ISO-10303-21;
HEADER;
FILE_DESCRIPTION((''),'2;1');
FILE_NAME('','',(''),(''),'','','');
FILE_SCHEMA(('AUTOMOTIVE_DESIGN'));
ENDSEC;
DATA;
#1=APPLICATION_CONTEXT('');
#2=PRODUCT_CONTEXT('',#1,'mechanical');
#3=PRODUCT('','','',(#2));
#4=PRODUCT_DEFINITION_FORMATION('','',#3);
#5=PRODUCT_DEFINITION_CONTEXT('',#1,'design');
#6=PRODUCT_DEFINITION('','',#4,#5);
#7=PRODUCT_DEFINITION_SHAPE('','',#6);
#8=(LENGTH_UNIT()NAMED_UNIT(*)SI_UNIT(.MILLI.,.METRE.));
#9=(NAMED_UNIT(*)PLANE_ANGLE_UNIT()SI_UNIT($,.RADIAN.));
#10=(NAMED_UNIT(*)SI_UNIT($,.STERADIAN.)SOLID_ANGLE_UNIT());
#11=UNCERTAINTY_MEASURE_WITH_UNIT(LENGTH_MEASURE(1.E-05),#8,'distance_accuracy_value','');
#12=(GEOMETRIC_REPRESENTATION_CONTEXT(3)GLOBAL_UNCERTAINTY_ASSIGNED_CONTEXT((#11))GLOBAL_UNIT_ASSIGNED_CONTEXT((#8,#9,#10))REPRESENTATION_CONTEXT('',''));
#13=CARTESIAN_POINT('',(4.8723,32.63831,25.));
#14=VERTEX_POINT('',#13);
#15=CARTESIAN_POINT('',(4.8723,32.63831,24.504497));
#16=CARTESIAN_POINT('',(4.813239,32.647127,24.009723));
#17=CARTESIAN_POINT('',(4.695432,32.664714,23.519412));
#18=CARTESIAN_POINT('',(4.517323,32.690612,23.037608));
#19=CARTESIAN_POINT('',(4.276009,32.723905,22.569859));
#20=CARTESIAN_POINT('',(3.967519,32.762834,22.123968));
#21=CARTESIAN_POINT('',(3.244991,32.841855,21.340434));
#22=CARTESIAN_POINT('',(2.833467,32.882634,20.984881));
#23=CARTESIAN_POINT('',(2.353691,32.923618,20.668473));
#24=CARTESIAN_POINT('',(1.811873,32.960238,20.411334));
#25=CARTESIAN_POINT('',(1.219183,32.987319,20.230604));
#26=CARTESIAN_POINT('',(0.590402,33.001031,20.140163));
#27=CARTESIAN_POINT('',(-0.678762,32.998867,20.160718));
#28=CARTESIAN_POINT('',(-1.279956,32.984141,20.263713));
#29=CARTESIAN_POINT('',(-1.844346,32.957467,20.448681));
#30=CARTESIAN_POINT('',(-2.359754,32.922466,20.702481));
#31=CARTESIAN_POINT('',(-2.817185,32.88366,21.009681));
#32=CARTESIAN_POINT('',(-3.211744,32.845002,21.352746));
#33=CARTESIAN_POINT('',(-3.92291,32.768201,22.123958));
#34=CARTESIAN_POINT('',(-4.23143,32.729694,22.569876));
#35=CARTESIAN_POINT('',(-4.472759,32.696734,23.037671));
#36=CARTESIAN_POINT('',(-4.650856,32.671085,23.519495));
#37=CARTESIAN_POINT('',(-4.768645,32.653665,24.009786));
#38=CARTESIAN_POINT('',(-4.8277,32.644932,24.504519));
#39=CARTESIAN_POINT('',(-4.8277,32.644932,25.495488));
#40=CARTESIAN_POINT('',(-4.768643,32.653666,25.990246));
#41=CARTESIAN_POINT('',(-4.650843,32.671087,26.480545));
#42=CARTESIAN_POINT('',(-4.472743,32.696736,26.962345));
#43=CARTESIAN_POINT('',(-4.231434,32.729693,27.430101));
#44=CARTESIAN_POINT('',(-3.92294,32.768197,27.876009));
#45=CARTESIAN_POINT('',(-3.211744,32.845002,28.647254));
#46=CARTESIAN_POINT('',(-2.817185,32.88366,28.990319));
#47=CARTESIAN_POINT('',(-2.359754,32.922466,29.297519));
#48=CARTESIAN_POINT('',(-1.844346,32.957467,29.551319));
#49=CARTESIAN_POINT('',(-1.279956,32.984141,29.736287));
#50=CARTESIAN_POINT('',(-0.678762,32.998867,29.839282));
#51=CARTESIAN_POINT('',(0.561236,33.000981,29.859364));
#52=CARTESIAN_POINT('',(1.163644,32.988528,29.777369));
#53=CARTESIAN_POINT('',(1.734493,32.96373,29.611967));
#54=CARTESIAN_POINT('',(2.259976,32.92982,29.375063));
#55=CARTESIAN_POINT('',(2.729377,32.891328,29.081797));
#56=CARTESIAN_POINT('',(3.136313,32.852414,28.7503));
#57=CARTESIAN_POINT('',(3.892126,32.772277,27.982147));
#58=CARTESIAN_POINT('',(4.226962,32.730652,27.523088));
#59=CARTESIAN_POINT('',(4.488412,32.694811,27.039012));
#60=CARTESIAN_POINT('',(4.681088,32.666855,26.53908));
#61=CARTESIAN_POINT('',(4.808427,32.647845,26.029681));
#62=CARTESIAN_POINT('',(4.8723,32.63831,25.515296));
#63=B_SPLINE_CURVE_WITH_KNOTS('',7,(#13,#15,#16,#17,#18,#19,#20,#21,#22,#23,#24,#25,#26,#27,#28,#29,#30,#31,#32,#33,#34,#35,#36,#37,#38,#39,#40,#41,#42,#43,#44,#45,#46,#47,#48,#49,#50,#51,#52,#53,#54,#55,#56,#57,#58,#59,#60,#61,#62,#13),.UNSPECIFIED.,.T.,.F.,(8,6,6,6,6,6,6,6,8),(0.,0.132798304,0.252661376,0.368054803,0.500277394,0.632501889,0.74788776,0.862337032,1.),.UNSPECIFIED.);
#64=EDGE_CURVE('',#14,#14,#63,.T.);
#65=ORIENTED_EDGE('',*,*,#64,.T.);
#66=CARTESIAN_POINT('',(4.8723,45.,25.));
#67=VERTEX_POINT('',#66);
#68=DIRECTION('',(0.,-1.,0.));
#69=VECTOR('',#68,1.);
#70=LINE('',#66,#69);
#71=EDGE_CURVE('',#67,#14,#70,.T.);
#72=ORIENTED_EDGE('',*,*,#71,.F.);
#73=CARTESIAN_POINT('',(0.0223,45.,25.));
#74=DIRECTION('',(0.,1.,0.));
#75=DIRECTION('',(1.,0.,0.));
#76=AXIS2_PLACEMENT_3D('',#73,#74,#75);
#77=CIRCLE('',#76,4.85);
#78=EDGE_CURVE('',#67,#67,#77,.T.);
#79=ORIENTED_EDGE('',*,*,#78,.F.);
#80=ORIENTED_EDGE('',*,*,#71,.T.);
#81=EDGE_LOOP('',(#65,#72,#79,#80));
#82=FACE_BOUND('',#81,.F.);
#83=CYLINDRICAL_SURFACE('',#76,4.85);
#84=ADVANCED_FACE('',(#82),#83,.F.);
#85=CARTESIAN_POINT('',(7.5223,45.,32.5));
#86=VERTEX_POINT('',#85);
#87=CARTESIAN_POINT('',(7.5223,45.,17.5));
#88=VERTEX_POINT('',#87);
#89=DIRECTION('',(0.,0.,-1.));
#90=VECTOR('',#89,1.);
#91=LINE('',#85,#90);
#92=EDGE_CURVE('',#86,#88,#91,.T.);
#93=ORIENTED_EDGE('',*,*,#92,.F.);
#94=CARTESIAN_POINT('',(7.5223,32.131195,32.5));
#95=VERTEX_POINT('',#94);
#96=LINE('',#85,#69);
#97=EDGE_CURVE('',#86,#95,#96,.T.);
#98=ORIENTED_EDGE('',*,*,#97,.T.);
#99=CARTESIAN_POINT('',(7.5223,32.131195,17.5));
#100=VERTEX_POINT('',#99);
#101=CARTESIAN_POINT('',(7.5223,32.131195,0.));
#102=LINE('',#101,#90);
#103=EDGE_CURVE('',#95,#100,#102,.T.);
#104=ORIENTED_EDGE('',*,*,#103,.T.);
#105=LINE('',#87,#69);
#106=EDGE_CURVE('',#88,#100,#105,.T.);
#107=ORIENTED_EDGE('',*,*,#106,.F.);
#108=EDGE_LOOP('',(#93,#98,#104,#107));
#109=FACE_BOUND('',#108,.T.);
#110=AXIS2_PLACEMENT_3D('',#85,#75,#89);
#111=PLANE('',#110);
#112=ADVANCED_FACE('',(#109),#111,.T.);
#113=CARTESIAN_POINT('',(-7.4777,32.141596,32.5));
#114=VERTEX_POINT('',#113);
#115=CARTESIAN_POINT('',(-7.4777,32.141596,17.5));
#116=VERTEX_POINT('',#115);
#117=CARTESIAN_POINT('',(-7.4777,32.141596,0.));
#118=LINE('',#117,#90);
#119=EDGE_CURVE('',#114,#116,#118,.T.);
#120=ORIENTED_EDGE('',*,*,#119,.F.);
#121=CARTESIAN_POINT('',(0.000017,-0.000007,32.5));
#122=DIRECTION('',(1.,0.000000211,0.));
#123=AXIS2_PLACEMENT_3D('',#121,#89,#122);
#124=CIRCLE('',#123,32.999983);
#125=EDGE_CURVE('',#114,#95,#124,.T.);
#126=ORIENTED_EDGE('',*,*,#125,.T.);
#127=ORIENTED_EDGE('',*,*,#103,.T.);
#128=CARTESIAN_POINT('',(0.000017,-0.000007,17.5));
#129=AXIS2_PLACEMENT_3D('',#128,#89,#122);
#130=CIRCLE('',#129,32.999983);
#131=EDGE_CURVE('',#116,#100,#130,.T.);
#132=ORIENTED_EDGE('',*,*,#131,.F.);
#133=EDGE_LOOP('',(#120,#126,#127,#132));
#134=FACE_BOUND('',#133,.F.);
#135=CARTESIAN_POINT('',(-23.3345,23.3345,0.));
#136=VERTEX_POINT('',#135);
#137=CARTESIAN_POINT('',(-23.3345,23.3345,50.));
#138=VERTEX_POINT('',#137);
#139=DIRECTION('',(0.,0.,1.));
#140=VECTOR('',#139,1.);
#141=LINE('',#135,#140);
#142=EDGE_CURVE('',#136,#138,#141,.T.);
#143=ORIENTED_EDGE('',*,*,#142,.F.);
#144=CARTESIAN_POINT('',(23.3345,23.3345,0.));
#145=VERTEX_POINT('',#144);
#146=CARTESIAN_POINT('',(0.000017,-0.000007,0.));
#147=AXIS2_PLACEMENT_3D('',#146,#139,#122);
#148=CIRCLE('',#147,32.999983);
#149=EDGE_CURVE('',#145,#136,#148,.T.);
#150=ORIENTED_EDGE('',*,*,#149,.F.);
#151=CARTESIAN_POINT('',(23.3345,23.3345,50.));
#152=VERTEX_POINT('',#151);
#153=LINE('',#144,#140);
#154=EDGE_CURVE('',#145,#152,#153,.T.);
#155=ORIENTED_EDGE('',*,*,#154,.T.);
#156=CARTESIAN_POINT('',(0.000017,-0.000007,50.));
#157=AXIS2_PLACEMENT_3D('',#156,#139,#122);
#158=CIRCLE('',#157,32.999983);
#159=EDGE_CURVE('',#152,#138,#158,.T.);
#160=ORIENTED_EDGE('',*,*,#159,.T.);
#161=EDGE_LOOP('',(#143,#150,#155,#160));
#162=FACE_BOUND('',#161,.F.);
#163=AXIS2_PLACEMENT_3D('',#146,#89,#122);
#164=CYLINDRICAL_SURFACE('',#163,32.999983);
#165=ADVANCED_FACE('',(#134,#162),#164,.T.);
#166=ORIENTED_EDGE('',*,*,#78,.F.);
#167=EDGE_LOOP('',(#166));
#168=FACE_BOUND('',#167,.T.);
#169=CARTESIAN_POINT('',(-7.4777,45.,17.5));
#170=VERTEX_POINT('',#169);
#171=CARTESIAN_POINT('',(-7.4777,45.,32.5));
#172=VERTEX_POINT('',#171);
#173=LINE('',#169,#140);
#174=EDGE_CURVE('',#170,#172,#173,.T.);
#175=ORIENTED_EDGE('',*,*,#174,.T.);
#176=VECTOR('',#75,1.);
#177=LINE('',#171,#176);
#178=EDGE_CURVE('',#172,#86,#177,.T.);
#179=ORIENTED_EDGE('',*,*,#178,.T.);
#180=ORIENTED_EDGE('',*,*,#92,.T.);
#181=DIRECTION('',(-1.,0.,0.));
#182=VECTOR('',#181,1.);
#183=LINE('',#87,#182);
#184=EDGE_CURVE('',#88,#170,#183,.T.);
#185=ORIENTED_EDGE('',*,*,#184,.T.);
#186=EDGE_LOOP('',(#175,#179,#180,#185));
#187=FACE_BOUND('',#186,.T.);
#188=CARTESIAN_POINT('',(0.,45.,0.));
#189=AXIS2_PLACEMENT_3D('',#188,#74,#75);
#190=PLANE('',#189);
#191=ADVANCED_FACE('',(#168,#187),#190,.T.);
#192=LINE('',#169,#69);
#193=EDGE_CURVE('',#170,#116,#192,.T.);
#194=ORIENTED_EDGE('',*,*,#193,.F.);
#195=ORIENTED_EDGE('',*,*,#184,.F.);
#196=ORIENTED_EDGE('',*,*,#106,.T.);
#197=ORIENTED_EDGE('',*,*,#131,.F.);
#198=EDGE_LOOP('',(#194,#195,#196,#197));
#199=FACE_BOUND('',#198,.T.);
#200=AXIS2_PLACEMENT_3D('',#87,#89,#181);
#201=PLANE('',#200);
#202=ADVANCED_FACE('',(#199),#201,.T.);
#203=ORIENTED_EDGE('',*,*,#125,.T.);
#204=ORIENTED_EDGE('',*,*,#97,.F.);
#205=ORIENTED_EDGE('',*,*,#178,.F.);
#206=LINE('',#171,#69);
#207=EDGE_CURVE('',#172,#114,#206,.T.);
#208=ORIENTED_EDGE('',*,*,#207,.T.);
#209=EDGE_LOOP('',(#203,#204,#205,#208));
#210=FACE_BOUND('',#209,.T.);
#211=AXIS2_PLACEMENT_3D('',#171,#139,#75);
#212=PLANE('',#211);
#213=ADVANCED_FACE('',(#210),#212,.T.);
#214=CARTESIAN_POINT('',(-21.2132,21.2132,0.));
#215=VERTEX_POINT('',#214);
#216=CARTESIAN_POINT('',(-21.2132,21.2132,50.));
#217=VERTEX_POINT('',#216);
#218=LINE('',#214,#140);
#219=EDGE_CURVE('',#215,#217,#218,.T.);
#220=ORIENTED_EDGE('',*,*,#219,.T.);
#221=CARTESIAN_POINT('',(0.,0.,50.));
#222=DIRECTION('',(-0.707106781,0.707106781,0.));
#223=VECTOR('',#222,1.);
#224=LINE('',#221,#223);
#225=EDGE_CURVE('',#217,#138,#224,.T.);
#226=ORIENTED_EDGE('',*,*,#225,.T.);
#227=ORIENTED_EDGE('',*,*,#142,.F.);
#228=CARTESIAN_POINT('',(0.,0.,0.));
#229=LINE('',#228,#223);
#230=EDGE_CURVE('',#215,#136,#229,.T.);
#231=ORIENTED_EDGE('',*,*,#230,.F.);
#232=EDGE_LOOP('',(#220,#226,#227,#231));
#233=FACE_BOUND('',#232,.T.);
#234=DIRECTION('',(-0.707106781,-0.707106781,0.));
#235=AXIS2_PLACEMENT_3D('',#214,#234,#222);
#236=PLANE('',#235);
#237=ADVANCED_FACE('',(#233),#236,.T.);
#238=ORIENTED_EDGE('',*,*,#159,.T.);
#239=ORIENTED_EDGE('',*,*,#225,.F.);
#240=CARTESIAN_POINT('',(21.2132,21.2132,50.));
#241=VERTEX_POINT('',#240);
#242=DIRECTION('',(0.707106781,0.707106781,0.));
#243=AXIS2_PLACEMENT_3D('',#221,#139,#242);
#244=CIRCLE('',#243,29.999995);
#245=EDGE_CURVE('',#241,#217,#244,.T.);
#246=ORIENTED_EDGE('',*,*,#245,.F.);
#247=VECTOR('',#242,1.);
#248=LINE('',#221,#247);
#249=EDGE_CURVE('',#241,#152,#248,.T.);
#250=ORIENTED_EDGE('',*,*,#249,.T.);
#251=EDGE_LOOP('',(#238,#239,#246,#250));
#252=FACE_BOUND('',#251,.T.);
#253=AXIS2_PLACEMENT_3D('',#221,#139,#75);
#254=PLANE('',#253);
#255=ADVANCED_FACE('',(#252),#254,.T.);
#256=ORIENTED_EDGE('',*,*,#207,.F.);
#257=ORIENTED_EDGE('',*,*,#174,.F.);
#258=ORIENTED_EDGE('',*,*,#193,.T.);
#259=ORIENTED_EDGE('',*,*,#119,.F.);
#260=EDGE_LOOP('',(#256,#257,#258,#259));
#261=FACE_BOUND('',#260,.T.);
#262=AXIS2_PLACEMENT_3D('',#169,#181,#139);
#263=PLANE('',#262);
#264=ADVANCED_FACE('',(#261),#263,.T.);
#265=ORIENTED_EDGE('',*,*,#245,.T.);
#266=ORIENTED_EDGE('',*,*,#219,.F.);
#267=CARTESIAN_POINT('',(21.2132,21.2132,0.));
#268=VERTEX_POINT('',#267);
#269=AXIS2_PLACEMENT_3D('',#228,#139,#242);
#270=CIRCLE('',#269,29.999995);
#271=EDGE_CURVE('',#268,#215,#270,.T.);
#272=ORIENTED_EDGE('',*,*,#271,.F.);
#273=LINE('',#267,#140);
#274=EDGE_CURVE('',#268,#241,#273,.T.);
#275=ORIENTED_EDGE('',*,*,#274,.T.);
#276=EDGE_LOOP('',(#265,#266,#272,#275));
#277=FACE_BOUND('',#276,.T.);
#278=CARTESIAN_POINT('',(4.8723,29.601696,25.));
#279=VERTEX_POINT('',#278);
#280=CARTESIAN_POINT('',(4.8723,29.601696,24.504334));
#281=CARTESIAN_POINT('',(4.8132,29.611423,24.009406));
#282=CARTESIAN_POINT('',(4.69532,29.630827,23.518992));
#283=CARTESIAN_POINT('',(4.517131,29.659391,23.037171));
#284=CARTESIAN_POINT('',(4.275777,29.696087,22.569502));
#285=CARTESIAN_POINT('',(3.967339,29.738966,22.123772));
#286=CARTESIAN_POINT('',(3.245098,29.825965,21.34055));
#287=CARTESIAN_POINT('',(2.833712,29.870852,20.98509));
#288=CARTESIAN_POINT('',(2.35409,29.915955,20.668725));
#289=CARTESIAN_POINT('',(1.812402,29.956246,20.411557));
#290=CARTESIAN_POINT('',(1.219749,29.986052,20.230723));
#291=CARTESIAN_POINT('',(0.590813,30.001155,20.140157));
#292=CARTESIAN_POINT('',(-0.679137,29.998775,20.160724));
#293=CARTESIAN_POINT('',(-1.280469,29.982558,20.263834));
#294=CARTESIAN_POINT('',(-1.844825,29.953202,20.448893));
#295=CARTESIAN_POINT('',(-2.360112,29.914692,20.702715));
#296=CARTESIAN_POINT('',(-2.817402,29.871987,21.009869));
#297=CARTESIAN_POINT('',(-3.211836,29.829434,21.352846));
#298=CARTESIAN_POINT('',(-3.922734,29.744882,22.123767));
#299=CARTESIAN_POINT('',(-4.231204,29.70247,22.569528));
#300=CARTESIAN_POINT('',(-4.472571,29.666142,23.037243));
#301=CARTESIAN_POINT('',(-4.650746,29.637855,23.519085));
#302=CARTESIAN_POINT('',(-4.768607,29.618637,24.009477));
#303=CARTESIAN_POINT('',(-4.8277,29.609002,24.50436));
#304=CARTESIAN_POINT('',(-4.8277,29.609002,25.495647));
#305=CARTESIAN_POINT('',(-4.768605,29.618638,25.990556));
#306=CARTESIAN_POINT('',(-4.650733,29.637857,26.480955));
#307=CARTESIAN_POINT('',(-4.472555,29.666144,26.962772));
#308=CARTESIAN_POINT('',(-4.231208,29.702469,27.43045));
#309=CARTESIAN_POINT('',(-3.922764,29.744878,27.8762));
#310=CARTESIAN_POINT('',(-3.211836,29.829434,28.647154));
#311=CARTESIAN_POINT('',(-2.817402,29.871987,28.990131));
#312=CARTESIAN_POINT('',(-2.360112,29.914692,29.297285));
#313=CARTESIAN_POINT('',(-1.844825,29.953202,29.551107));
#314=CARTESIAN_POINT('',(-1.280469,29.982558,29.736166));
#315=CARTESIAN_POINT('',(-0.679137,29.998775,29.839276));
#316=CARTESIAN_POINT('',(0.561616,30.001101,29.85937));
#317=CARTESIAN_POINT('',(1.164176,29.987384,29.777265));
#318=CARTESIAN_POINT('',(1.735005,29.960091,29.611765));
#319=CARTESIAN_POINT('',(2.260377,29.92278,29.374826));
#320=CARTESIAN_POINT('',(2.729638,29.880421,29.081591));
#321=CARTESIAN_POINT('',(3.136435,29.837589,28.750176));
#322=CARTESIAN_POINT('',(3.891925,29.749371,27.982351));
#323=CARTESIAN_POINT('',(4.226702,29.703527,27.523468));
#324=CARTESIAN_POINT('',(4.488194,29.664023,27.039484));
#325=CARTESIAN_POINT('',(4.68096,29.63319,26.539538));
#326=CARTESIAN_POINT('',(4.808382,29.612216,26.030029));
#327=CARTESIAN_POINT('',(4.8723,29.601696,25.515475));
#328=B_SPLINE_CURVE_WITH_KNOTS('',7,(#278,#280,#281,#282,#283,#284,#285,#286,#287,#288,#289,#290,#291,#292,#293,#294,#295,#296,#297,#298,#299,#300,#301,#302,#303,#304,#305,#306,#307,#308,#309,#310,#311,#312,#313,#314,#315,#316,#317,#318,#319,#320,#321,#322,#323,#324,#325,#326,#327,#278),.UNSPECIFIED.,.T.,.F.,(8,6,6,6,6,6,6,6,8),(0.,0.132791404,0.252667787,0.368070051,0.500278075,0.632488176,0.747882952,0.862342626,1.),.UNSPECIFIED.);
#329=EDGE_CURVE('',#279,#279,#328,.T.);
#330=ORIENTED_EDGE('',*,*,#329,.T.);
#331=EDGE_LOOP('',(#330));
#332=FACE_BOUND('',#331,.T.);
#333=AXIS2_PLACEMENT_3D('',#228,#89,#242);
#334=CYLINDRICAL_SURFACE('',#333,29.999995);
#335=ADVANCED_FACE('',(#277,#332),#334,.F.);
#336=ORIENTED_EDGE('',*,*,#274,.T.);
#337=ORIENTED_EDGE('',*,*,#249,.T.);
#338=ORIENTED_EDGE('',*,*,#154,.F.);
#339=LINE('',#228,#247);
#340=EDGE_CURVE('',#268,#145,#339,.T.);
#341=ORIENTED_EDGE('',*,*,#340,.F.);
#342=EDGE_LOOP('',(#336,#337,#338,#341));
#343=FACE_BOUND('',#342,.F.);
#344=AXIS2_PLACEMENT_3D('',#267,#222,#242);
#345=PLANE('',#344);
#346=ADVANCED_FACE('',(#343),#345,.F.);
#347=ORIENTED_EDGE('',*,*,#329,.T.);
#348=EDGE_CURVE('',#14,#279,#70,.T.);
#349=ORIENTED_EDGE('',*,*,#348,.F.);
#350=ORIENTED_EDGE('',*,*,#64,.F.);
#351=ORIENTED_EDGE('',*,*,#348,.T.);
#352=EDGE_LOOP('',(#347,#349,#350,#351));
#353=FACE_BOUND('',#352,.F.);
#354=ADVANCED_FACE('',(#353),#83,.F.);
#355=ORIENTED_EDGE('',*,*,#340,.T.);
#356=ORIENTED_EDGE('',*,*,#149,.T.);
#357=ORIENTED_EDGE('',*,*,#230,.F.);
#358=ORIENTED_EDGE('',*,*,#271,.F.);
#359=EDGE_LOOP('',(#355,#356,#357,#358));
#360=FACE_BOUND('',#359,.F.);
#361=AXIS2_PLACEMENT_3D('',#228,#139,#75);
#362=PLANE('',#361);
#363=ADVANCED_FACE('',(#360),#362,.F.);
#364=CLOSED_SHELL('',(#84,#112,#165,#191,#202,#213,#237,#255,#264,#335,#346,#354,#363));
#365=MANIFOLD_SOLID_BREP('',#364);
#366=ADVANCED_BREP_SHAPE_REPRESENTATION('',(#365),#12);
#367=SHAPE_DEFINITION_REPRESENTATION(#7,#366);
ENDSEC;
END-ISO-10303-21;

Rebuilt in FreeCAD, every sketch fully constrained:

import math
import FreeCAD as App
import Part
import Sketcher

V = App.Vector

doc = App.newDocument("Part")
params = doc.addObject("Spreadsheet::Sheet", "Params")
for row, (alias, value) in enumerate([
    ("sketch1_radius", "30 mm"),
    ("sketch1_radius2", "33 mm"),
    ("pad1_length", "50 mm"),
    ("sketch2_diameter", "9.7 mm"),
    ("sketch2_width", "15 mm"),
    ("pad2_length", "14 mm"),
    ("sketch3_diameter", "9.7 mm"),
    ("pocket1_length", "31 mm"),
], start=1):
    params.set(f"A{row}", alias)
    params.set(f"B{row}", "=" + value)
    params.setAlias(f"B{row}", alias)

body = doc.addObject("PartDesign::Body", "Body")

sketch1 = doc.addObject("Sketcher::SketchObject", "Sketch")
body.addObject(sketch1)
sketch1.AttachmentSupport = (doc.XY_Plane, [""])
sketch1.MapMode = "FlatFace"
sketch1.addGeometry([
    Part.ArcOfCircle(Part.Circle(V(0, 0, 0), V(0, 0, 1), 30), math.radians(45), math.radians(135)),
    Part.LineSegment(V(21.2, 21.2, 0), V(23.3, 23.3, 0)),
    Part.ArcOfCircle(Part.Circle(V(0, 0, 0), V(0, 0, 1), 33), math.radians(45), math.radians(135)),
    Part.LineSegment(V(-23.3, 23.3, 0), V(-21.2, 21.2, 0)),
], False)
sketch1.addConstraint([
    Sketcher.Constraint("Coincident", 0, 1, 1, 1),
    Sketcher.Constraint("Coincident", 1, 2, 2, 1),
    Sketcher.Constraint("Coincident", 2, 2, 3, 1),
    Sketcher.Constraint("Coincident", 3, 2, 0, 2),
    Sketcher.Constraint("Coincident", 0, 3, -1, 1),
    Sketcher.Constraint("Coincident", 2, 3, -1, 1),
    Sketcher.Constraint("Perpendicular", 1, 3),
    Sketcher.Constraint("Horizontal", 1, 2, 2, 2),
    Sketcher.Constraint("Horizontal", 0, 1, 3, 2),
    Sketcher.Constraint("Radius", 0, 30.0),
    Sketcher.Constraint("Radius", 2, 33.0),
    Sketcher.Constraint("DistanceX", 2, 2, 1, 2, 46.669),
])
sketch1.setExpression("Constraints[9]", "Params.sketch1_radius")
sketch1.setExpression("Constraints[10]", "Params.sketch1_radius2")
pad1 = doc.addObject("PartDesign::Pad", "Pad")
body.addObject(pad1)
pad1.Profile = sketch1
pad1.setExpression("Length", "Params.pad1_length")

sketch2 = doc.addObject("Sketcher::SketchObject", "Sketch001")
body.addObject(sketch2)
sketch2.AttachmentSupport = (doc.XZ_Plane, [""])
sketch2.MapMode = "FlatFace"
sketch2.AttachmentOffset = App.Placement(V(0, 0, -45), App.Rotation())
sketch2.addGeometry([
    Part.LineSegment(V(7.5, 32.5, 0), V(7.5, 17.5, 0)),
    Part.LineSegment(V(7.5, 17.5, 0), V(-7.5, 17.5, 0)),
    Part.LineSegment(V(-7.5, 17.5, 0), V(-7.5, 32.5, 0)),
    Part.LineSegment(V(-7.5, 32.5, 0), V(7.5, 32.5, 0)),
    Part.Circle(V(0, 25, 0), V(0, 0, 1), 4.8),
], False)
sketch2.addConstraint([
    Sketcher.Constraint("Coincident", 0, 2, 1, 1),
    Sketcher.Constraint("Coincident", 1, 2, 2, 1),
    Sketcher.Constraint("Coincident", 2, 2, 3, 1),
    Sketcher.Constraint("Coincident", 3, 2, 0, 1),
    Sketcher.Constraint("Vertical", 0),
    Sketcher.Constraint("Horizontal", 1),
    Sketcher.Constraint("Vertical", 2),
    Sketcher.Constraint("Horizontal", 3),
    Sketcher.Constraint("Equal", 3, 0),
    Sketcher.Constraint("Diameter", 4, 9.7),
    Sketcher.Constraint("DistanceX", 1, 2, 1, 1, 15.0),
    Sketcher.Constraint("DistanceY", -1, 1, 4, 3, 25.0),
    Sketcher.Constraint("DistanceY", -1, 1, 0, 2, 17.5),
    Sketcher.Constraint("DistanceX", 4, 3, 0, 2, 7.5),
    Sketcher.Constraint("DistanceX", -1, 1, 4, 3, 0.0223),
])
sketch2.setExpression("Constraints[9]", "Params.sketch2_diameter")
sketch2.setExpression("Constraints[10]", "Params.sketch2_width")
pad2 = doc.addObject("PartDesign::Pad", "Pad001")
body.addObject(pad2)
pad2.Profile = sketch2
pad2.setExpression("Length", "Params.pad2_length")

sketch3 = doc.addObject("Sketcher::SketchObject", "Sketch002")
body.addObject(sketch3)
sketch3.AttachmentSupport = (doc.XZ_Plane, [""])
sketch3.MapMode = "FlatFace"
sketch3.AttachmentOffset = App.Placement(V(0, 0, -45), App.Rotation())
sketch3.addGeometry(Part.Circle(V(0, 25, 0), V(0, 0, 1), 4.8), False)
sketch3.addConstraint([
    Sketcher.Constraint("Diameter", 0, 9.7),
    Sketcher.Constraint("DistanceY", -1, 1, 0, 3, 25.0),
    Sketcher.Constraint("DistanceX", -1, 1, 0, 3, 0.0223),
])
sketch3.setExpression("Constraints[0]", "Params.sketch3_diameter")
pocket1 = doc.addObject("PartDesign::Pocket", "Pocket")
body.addObject(pocket1)
pocket1.Profile = sketch3
pocket1.setExpression("Length", "Params.pocket1_length")
pocket1.Reversed = True

doc.recompute()
